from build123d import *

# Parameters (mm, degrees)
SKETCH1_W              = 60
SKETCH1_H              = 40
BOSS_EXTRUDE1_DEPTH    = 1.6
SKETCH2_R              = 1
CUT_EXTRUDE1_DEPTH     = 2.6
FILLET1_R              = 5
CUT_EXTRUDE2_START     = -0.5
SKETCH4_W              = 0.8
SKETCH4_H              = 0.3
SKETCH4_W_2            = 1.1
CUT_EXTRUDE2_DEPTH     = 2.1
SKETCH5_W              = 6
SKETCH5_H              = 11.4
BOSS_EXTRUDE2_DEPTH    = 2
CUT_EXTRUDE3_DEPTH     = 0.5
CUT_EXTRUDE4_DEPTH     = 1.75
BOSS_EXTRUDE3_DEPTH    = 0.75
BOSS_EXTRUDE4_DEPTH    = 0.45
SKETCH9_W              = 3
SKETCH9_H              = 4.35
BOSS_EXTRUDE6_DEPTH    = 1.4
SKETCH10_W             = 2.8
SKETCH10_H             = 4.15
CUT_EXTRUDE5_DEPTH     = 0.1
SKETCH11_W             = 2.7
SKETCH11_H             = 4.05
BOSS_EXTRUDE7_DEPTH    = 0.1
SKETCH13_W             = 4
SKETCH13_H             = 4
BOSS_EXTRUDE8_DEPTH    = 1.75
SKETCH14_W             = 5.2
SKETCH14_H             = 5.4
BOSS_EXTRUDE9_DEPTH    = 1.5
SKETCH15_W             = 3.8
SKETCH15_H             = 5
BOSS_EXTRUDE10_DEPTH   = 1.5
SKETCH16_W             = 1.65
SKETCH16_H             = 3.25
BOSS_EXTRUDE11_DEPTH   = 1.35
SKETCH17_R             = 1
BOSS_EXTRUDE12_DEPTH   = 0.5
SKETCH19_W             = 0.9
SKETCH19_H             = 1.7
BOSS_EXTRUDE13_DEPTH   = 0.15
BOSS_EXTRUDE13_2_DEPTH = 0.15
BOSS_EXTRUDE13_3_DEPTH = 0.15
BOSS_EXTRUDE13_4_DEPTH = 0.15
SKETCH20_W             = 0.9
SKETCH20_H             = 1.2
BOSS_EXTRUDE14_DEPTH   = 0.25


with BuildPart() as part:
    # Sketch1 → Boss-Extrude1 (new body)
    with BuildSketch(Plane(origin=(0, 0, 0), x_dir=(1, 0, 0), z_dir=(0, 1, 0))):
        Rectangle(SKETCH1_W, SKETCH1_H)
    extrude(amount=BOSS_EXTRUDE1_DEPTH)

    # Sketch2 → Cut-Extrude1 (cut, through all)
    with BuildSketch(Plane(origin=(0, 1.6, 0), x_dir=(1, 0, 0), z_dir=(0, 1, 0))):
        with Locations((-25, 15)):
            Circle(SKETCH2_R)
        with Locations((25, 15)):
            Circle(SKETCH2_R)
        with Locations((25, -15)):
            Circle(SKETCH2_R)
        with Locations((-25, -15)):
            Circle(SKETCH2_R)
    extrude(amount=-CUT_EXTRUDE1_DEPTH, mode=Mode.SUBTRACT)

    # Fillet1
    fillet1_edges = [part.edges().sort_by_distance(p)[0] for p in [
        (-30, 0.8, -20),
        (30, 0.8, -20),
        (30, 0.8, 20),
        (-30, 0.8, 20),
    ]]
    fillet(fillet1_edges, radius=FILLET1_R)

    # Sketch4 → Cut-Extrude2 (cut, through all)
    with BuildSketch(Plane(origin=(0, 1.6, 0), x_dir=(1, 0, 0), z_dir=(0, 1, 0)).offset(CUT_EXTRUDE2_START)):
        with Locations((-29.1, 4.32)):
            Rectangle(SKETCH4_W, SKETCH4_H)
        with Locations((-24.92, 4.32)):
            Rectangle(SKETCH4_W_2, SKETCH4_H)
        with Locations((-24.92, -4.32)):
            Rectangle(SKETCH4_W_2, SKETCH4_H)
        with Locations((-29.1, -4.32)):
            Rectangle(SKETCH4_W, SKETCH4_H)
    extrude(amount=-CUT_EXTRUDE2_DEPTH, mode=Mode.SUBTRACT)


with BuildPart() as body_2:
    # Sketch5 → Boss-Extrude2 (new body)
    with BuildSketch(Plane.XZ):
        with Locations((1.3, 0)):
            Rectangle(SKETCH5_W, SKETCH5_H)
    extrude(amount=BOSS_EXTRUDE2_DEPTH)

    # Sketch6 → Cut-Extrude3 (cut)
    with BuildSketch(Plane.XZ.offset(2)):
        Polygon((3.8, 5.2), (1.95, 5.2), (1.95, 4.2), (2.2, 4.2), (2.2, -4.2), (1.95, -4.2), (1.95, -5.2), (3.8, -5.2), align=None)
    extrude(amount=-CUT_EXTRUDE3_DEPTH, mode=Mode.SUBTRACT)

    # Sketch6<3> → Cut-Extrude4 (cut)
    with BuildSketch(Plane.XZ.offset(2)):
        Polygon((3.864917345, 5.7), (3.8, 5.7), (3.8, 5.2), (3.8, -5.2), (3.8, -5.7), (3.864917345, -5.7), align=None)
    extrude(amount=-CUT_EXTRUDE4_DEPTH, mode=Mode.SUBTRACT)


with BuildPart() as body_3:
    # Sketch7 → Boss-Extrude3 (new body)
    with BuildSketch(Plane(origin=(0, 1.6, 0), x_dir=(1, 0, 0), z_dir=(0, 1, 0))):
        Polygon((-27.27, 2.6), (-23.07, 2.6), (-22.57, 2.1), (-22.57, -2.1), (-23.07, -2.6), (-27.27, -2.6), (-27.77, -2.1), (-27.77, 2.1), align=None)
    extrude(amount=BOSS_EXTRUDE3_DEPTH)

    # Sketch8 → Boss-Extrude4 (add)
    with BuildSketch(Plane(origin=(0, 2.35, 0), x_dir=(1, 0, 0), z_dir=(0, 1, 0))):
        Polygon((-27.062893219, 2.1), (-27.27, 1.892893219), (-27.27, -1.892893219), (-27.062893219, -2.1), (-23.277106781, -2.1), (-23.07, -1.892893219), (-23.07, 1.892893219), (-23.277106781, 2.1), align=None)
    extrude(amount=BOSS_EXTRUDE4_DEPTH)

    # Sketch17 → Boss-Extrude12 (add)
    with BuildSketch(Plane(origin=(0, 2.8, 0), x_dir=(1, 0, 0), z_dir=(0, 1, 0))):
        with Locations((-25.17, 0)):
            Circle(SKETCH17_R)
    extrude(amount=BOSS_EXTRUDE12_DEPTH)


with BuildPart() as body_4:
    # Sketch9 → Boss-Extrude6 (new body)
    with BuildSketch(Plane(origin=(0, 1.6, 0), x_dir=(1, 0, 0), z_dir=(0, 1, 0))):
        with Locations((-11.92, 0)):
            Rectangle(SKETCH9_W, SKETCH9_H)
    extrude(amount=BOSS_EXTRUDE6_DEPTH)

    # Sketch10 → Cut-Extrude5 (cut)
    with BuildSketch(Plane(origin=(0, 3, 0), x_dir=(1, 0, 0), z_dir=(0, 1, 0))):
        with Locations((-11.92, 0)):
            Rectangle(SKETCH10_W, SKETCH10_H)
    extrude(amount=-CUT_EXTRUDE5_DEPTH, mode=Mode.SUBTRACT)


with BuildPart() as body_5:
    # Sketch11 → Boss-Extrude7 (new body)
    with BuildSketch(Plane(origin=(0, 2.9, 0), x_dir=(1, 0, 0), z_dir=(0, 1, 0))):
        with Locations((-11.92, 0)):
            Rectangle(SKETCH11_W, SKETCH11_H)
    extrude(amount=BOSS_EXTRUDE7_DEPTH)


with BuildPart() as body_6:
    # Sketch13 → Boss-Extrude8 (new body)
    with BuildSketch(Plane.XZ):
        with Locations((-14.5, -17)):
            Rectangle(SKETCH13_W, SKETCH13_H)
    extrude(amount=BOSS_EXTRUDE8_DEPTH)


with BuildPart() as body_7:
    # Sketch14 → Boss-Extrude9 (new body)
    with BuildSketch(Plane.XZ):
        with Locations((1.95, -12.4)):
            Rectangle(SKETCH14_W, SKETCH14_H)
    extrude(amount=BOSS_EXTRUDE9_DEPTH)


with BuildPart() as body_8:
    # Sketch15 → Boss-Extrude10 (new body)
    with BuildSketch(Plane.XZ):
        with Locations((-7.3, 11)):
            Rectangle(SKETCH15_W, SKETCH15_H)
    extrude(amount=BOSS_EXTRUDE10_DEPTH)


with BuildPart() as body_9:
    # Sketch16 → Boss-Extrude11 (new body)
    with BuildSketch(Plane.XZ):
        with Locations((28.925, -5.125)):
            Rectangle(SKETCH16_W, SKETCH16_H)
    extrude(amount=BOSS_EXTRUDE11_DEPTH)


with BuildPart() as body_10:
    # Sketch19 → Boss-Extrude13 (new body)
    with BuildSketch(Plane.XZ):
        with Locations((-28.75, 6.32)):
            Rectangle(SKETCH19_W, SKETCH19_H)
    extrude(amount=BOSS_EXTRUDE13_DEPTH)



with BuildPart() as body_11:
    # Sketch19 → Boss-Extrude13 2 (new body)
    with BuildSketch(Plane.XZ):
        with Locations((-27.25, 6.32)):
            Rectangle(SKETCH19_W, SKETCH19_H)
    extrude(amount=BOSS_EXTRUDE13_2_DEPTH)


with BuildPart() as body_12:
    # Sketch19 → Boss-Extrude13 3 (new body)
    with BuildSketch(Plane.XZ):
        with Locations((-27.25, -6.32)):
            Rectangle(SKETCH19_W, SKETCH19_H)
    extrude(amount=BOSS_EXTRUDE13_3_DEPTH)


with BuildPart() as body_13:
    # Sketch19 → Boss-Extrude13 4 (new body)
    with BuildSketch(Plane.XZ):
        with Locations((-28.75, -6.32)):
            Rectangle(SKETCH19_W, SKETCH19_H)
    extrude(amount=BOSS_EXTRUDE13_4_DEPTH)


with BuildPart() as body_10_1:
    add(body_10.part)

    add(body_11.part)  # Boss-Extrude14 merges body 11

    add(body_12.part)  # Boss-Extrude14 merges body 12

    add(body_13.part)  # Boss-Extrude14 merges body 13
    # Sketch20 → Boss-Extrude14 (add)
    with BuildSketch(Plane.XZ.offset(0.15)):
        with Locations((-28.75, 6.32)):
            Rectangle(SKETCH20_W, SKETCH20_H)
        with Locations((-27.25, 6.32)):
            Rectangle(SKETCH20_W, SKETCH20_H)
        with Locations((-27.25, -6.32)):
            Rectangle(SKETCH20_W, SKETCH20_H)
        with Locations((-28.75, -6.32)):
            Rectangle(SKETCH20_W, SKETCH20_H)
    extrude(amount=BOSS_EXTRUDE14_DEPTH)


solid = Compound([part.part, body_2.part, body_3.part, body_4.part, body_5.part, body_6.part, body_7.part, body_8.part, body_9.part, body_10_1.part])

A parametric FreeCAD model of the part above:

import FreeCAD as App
import Part
import Sketcher
from FreeCAD import Vector
Q = App.Units.Quantity


def edges_at(feature, points):
    """Names of the edges that pass closest to the given points."""
    edges = feature.Shape.Edges
    near = lambda p: min(range(len(edges)), key=lambda i: edges[i].distToShape(Part.Vertex(*p))[0])
    return sorted({f"Edge{near(p) + 1}" for p in points})

doc = App.newDocument("Part")
body = doc.addObject("PartDesign::Body", "Body")

sketch1 = body.newObject("Sketcher::SketchObject", "Sketch")
sketch1.AttachmentSupport = (doc.getObject("XZ_Plane"), [""])
sketch1.MapMode = "FlatFace"
sketch1.addGeometry([
    Part.LineSegment(Vector(-30, -20, 0), Vector(-30, 20, 0)),
    Part.LineSegment(Vector(-30, 20, 0), Vector(30, 20, 0)),
    Part.LineSegment(Vector(30, 20, 0), Vector(30, -20, 0)),
    Part.LineSegment(Vector(30, -20, 0), Vector(-30, -20, 0)),
], False)
sketch1.addConstraint([
    Sketcher.Constraint("Coincident", 0, 2, 1, 1),
    Sketcher.Constraint("Coincident", 1, 2, 2, 1),
    Sketcher.Constraint("Coincident", 2, 2, 3, 1),
    Sketcher.Constraint("Coincident", 3, 2, 0, 1),
    Sketcher.Constraint("Vertical", 0),
    Sketcher.Constraint("Horizontal", 1),
    Sketcher.Constraint("Vertical", 2),
    Sketcher.Constraint("Horizontal", 3),
    Sketcher.Constraint("Symmetric", 0, 2, 2, 2, -1, 1),
    Sketcher.Constraint("DistanceX", 1, 1, 1, 2, Q("60 mm")),
    Sketcher.Constraint("DistanceY", 0, 1, 0, 2, Q("40 mm")),
])
pad1 = body.newObject("PartDesign::Pad", "Pad")
pad1.Profile = sketch1
pad1.Length = 1.6
pad1.Reversed = True

sketch2 = body.newObject("Sketcher::SketchObject", "Sketch001")
sketch2.AttachmentSupport = (doc.getObject("XZ_Plane"), [""])
sketch2.MapMode = "FlatFace"
sketch2.AttachmentOffset = App.Placement(Vector(0, 0, -1.6), App.Rotation())
sketch2.addGeometry([
    Part.Circle(Vector(-25, -15, 0), Vector(0, 0, 1), 1),
    Part.Circle(Vector(25, -15, 0), Vector(0, 0, 1), 1),
    Part.Circle(Vector(25, 15, 0), Vector(0, 0, 1), 1),
    Part.Circle(Vector(-25, 15, 0), Vector(0, 0, 1), 1),
], False)
sketch2.addConstraint([
    Sketcher.Constraint("Equal", 0, 1),
    Sketcher.Constraint("Equal", 1, 2),
    Sketcher.Constraint("Equal", 2, 3),
    Sketcher.Constraint("Symmetric", 0, 3, 2, 3, -1, 1),
    Sketcher.Constraint("Symmetric", 1, 3, 3, 3, -1, 1),
    Sketcher.Constraint("Symmetric", 0, 3, 1, 3, -2),
    Sketcher.Constraint("Diameter", 0, Q("2 mm")),
    Sketcher.Constraint("DistanceX", 0, 3, -1, 1, Q("25 mm")),
    Sketcher.Constraint("DistanceY", 0, 3, -1, 1, Q("15 mm")),
])
pocket1 = body.newObject("PartDesign::Pocket", "Pocket")
pocket1.Profile = sketch2
pocket1.Type = "ThroughAll"
pocket1.Reversed = True
doc.recompute()

fillet = body.newObject("PartDesign::Fillet", "Fillet")
fillet.Base = (pocket1, edges_at(pocket1, [
    (-30, 0.8, -20),
    (30, 0.8, -20),
    (30, 0.8, 20),
    (-30, 0.8, 20),
]))
fillet.Radius = 5

sketch3 = body.newObject("Sketcher::SketchObject", "Sketch002")
sketch3.AttachmentSupport = (doc.getObject("XZ_Plane"), [""])
sketch3.MapMode = "FlatFace"
sketch3.AttachmentOffset = App.Placement(Vector(0, 0, -1.1), App.Rotation())
sketch3.addGeometry([
    Part.LineSegment(Vector(-29.5, -4.47, 0), Vector(-29.5, -4.17, 0)),
    Part.LineSegment(Vector(-29.5, -4.17, 0), Vector(-28.7, -4.17, 0)),
    Part.LineSegment(Vector(-28.7, -4.17, 0), Vector(-28.7, -4.47, 0)),
    Part.LineSegment(Vector(-28.7, -4.47, 0), Vector(-29.5, -4.47, 0)),
    Part.LineSegment(Vector(-25.47, -4.47, 0), Vector(-25.47, -4.17, 0)),
    Part.LineSegment(Vector(-25.47, -4.17, 0), Vector(-24.37, -4.17, 0)),
    Part.LineSegment(Vector(-24.37, -4.17, 0), Vector(-24.37, -4.47, 0)),
    Part.LineSegment(Vector(-24.37, -4.47, 0), Vector(-25.47, -4.47, 0)),
    Part.LineSegment(Vector(-25.47, 4.17, 0), Vector(-25.47, 4.47, 0)),
    Part.LineSegment(Vector(-25.47, 4.47, 0), Vector(-24.37, 4.47, 0)),
    Part.LineSegment(Vector(-24.37, 4.47, 0), Vector(-24.37, 4.17, 0)),
    Part.LineSegment(Vector(-24.37, 4.17, 0), Vector(-25.47, 4.17, 0)),
    Part.LineSegment(Vector(-29.5, 4.17, 0), Vector(-29.5, 4.47, 0)),
    Part.LineSegment(Vector(-29.5, 4.47, 0), Vector(-28.7, 4.47, 0)),
    Part.LineSegment(Vector(-28.7, 4.47, 0), Vector(-28.7, 4.17, 0)),
    Part.LineSegment(Vector(-28.7, 4.17, 0), Vector(-29.5, 4.17, 0)),
], False)
sketch3.addConstraint([
    Sketcher.Constraint("Coincident", 0, 2, 1, 1),
    Sketcher.Constraint("Coincident", 1, 2, 2, 1),
    Sketcher.Constraint("Coincident", 2, 2, 3, 1),
    Sketcher.Constraint("Coincident", 3, 2, 0, 1),
    Sketcher.Constraint("Coincident", 4, 2, 5, 1),
    Sketcher.Constraint("Coincident", 5, 2, 6, 1),
    Sketcher.Constraint("Coincident", 6, 2, 7, 1),
    Sketcher.Constraint("Coincident", 7, 2, 4, 1),
    Sketcher.Constraint("Coincident", 8, 2, 9, 1),
    Sketcher.Constraint("Coincident", 9, 2, 10, 1),
    Sketcher.Constraint("Coincident", 10, 2, 11, 1),
    Sketcher.Constraint("Coincident", 11, 2, 8, 1),
    Sketcher.Constraint("Coincident", 12, 2, 13, 1),
    Sketcher.Constraint("Coincident", 13, 2, 14, 1),
    Sketcher.Constraint("Coincident", 14, 2, 15, 1),
    Sketcher.Constraint("Coincident", 15, 2, 12, 1),
    Sketcher.Constraint("Vertical", 0),
    Sketcher.Constraint("Horizontal", 1),
    Sketcher.Constraint("Vertical", 2),
    Sketcher.Constraint("Horizontal", 3),
    Sketcher.Constraint("Vertical", 4),
    Sketcher.Constraint("Horizontal", 5),
    Sketcher.Constraint("Vertical", 6),
    Sketcher.Constraint("Horizontal", 7),
    Sketcher.Constraint("Vertical", 8),
    Sketcher.Constraint("Horizontal", 9),
    Sketcher.Constraint("Vertical", 10),
    Sketcher.Constraint("Horizontal", 11),
    Sketcher.Constraint("Vertical", 12),
    Sketcher.Constraint("Horizontal", 13),
    Sketcher.Constraint("Vertical", 14),
    Sketcher.Constraint("Horizontal", 15),
    Sketcher.Constraint("Symmetric", 7, 2, 8, 2, -1),
    Sketcher.Constraint("Symmetric", 5, 2, 10, 2, -1),
    Sketcher.Constraint("Symmetric", 3, 2, 12, 2, -1),
    Sketcher.Constraint("Symmetric", 1, 2, 14, 2, -1),
    Sketcher.Constraint("Horizontal", 1, 2, 4, 2),
    Sketcher.Constraint("Horizontal", 3, 2, 6, 2),
    Sketcher.Constraint("DistanceX", 1, 1, 1, 2, Q("0.8 mm")),
    Sketcher.Constraint("DistanceX", 5, 1, 5, 2, Q("1.1 mm")),
    Sketcher.Constraint("DistanceY", 0, 1, 0, 2, Q("0.3 mm")),
    Sketcher.Constraint("DistanceX", 0, 2, -1, 1, Q("29.5 mm")),
    Sketcher.Constraint("DistanceY", 0, 2, -1, 1, Q("4.17 mm")),
    Sketcher.Constraint("DistanceX", 4, 2, -1, 1, Q("25.47 mm")),
])
pocket2 = body.newObject("PartDesign::Pocket", "Pocket001")
pocket2.Profile = sketch3
pocket2.Type = "ThroughAll"
pocket2.Reversed = True
body2 = doc.addObject("PartDesign::Body", "Body001")

sketch4 = body2.newObject("Sketcher::SketchObject", "Sketch003")
sketch4.AttachmentSupport = (doc.getObject("XZ_Plane001"), [""])
sketch4.MapMode = "FlatFace"
sketch4.addGeometry([
    Part.LineSegment(Vector(-1.7, 5.7, 0), Vector(-1.7, -5.7, 0)),
    Part.LineSegment(Vector(-1.7, -5.7, 0), Vector(4.3, -5.7, 0)),
    Part.LineSegment(Vector(4.3, -5.7, 0), Vector(4.3, 5.7, 0)),
    Part.LineSegment(Vector(4.3, 5.7, 0), Vector(-1.7, 5.7, 0)),
], False)
sketch4.addConstraint([
    Sketcher.Constraint("Coincident", 0, 2, 1, 1),
    Sketcher.Constraint("Coincident", 1, 2, 2, 1),
    Sketcher.Constraint("Coincident", 2, 2, 3, 1),
    Sketcher.Constraint("Coincident", 3, 2, 0, 1),
    Sketcher.Constraint("Vertical", 0),
    Sketcher.Constraint("Horizontal", 1),
    Sketcher.Constraint("Vertical", 2),
    Sketcher.Constraint("Horizontal", 3),
    Sketcher.Constraint("DistanceX", 1, 1, 1, 2, Q("6 mm")),
    Sketcher.Constraint("DistanceY", 0, 2, 0, 1, Q("11.4 mm")),
    Sketcher.Constraint("DistanceX", 0, 2, -1, 1, Q("1.7 mm")),
    Sketcher.Constraint("DistanceY", 0, 2, -1, 1, Q("5.7 mm")),
])
pad2 = body2.newObject("PartDesign::Pad", "Pad001")
pad2.Profile = sketch4
pad2.Length = 2

sketch5 = body2.newObject("Sketcher::SketchObject", "Sketch004")
sketch5.AttachmentSupport = (doc.getObject("XZ_Plane001"), [""])
sketch5.MapMode = "FlatFace"
sketch5.AttachmentOffset = App.Placement(Vector(0, 0, 2), App.Rotation())
sketch5.addGeometry([
    Part.LineSegment(Vector(3.8, 5.2, 0), Vector(1.95, 5.2, 0)),
    Part.LineSegment(Vector(1.95, 5.2, 0), Vector(1.95, 4.2, 0)),
    Part.LineSegment(Vector(1.95, 4.2, 0), Vector(2.2, 4.2, 0)),
    Part.LineSegment(Vector(2.2, 4.2, 0), Vector(2.2, -4.2, 0)),
    Part.LineSegment(Vector(2.2, -4.2, 0), Vector(1.95, -4.2, 0)),
    Part.LineSegment(Vector(1.95, -4.2, 0), Vector(1.95, -5.2, 0)),
    Part.LineSegment(Vector(1.95, -5.2, 0), Vector(3.8, -5.2, 0)),
    Part.LineSegment(Vector(3.8, -5.2, 0), Vector(3.8, 5.2, 0)),
], False)
sketch5.addConstraint([
    Sketcher.Constraint("Coincident", 0, 2, 1, 1),
    Sketcher.Constraint("Coincident", 1, 2, 2, 1),
    Sketcher.Constraint("Coincident", 2, 2, 3, 1),
    Sketcher.Constraint("Coincident", 3, 2, 4, 1),
    Sketcher.Constraint("Coincident", 4, 2, 5, 1),
    Sketcher.Constraint("Coincident", 5, 2, 6, 1),
    Sketcher.Constraint("Coincident", 6, 2, 7, 1),
    Sketcher.Constraint("Coincident", 7, 2, 0, 1),
    Sketcher.Constraint("Horizontal", 0),
    Sketcher.Constraint("Vertical", 1),
    Sketcher.Constraint("Horizontal", 2),
    Sketcher.Constraint("Vertical", 3),
    Sketcher.Constraint("Horizontal", 4),
    Sketcher.Constraint("Vertical", 5),
    Sketcher.Constraint("Horizontal", 6),
    Sketcher.Constraint("Vertical", 7),
    Sketcher.Constraint("Symmetric", 1, 2, 4, 2, -1),
    Sketcher.Constraint("Equal", 1, 5),
    Sketcher.Constraint("DistanceY", 1, 2, 1, 1, Q("1 mm")),
    Sketcher.Constraint("DistanceY", 3, 2, 3, 1, Q("8.4 mm")),
    Sketcher.Constraint("DistanceX", 0, 2, 0, 1, Q("1.85 mm")),
    Sketcher.Constraint("DistanceX", 2, 1, 2, 2, Q("0.25 mm")),
    Sketcher.Constraint("DistanceX", -1, 1, 2, 2, Q("2.2 mm")),
])
pocket3 = body2.newObject("PartDesign::Pocket", "Pocket002")
pocket3.Profile = sketch5
pocket3.Length = 0.5

sketch6 = body2.newObject("Sketcher::SketchObject", "Sketch005")
sketch6.AttachmentSupport = (doc.getObject("XZ_Plane001"), [""])
sketch6.MapMode = "FlatFace"
sketch6.AttachmentOffset = App.Placement(Vector(0, 0, 2), App.Rotation())
sketch6.addGeometry([
    Part.LineSegment(Vector(3.864917, 5.7, 0), Vector(3.8, 5.7, 0)),
    Part.LineSegment(Vector(3.8, 5.7, 0), Vector(3.8, -5.7, 0)),
    Part.LineSegment(Vector(3.8, -5.7, 0), Vector(3.864917, -5.7, 0)),
    Part.LineSegment(Vector(3.864917, -5.7, 0), Vector(3.864917, 5.7, 0)),
], False)
sketch6.addConstraint([
    Sketcher.Constraint("Coincident", 0, 2, 1, 1),
    Sketcher.Constraint("Coincident", 1, 2, 2, 1),
    Sketcher.Constraint("Coincident", 2, 2, 3, 1),
    Sketcher.Constraint("Coincident", 3, 2, 0, 1),
    Sketcher.Constraint("Horizontal", 0),
    Sketcher.Constraint("Vertical", 1),
    Sketcher.Constraint("Horizontal", 2),
    Sketcher.Constraint("Vertical", 3),
    Sketcher.Constraint("DistanceY", 1, 2, 1, 1, Q("11.4 mm")),
    Sketcher.Constraint("DistanceX", -1, 1, 0, 2, Q("3.8 mm")),
    Sketcher.Constraint("DistanceY", -1, 1, 0, 2, Q("5.7 mm")),
    Sketcher.Constraint("DistanceX", 0, 2, 0, 1, Q("0.064917 mm")),
])
pocket4 = body2.newObject("PartDesign::Pocket", "Pocket003")
pocket4.Profile = sketch6
pocket4.Length = 1.75
body3 = doc.addObject("PartDesign::Body", "Body002")

sketch7 = body3.newObject("Sketcher::SketchObject", "Sketch006")
sketch7.AttachmentSupport = (doc.getObject("XZ_Plane002"), [""])
sketch7.MapMode = "FlatFace"
sketch7.AttachmentOffset = App.Placement(Vector(0, 0, -1.6), App.Rotation())
sketch7.addGeometry([
    Part.LineSegment(Vector(-23.07, -2.6, 0), Vector(-27.27, -2.6, 0)),
    Part.LineSegment(Vector(-27.27, -2.6, 0), Vector(-27.77, -2.1, 0)),
    Part.LineSegment(Vector(-27.77, -2.1, 0), Vector(-27.77, 2.1, 0)),
    Part.LineSegment(Vector(-27.77, 2.1, 0), Vector(-27.27, 2.6, 0)),
    Part.LineSegment(Vector(-27.27, 2.6, 0), Vector(-23.07, 2.6, 0)),
    Part.LineSegment(Vector(-23.07, 2.6, 0), Vector(-22.57, 2.1, 0)),
    Part.LineSegment(Vector(-22.57, 2.1, 0), Vector(-22.57, -2.1, 0)),
    Part.LineSegment(Vector(-22.57, -2.1, 0), Vector(-23.07, -2.6, 0)),
], False)
sketch7.addConstraint([
    Sketcher.Constraint("Coincident", 0, 2, 1, 1),
    Sketcher.Constraint("Coincident", 1, 2, 2, 1),
    Sketcher.Constraint("Coincident", 2, 2, 3, 1),
    Sketcher.Constraint("Coincident", 3, 2, 4, 1),
    Sketcher.Constraint("Coincident", 4, 2, 5, 1),
    Sketcher.Constraint("Coincident", 5, 2, 6, 1),
    Sketcher.Constraint("Coincident", 6, 2, 7, 1),
    Sketcher.Constraint("Coincident", 7, 2, 0, 1),
    Sketcher.Constraint("Horizontal", 0),
    Sketcher.Constraint("Vertical", 2),
    Sketcher.Constraint("Horizontal", 4),
    Sketcher.Constraint("Vertical", 6),
    Sketcher.Constraint("Symmetric", 0, 2, 3, 2, -1),
    Sketcher.Constraint("Perpendicular", 1, 3),
    Sketcher.Constraint("Perpendicular", 3, 5),
    Sketcher.Constraint("Perpendicular", 5, 7),
    Sketcher.Constraint("Horizontal", 2, 2, 5, 2),
    Sketcher.Constraint("Horizontal", 1, 2, 6, 2),
    Sketcher.Constraint("Vertical", 4, 2, 7, 2),
    Sketcher.Constraint("Equal", 4, 2),
    Sketcher.Constraint("DistanceX", 0, 2, 0, 1, Q("4.2 mm")),
    Sketcher.Constraint("DistanceY", 0, 2, -1, 1, Q("2.6 mm")),
    Sketcher.Constraint("DistanceX", 0, 2, -1, 1, Q("27.27 mm")),
])
pad3 = body3.newObject("PartDesign::Pad", "Pad002")
pad3.Profile = sketch7
pad3.Length = 0.75
pad3.Reversed = True

sketch8 = body3.newObject("Sketcher::SketchObject", "Sketch007")
sketch8.AttachmentSupport = (doc.getObject("XZ_Plane002"), [""])
sketch8.MapMode = "FlatFace"
sketch8.AttachmentOffset = App.Placement(Vector(0, 0, -2.35), App.Rotation())
sketch8.addGeometry([
    Part.LineSegment(Vector(-27.062893, -2.1, 0), Vector(-27.27, -1.892893, 0)),
    Part.LineSegment(Vector(-27.27, -1.892893, 0), Vector(-27.27, 1.892893, 0)),
    Part.LineSegment(Vector(-27.27, 1.892893, 0), Vector(-27.062893, 2.1, 0)),
    Part.LineSegment(Vector(-27.062893, 2.1, 0), Vector(-23.277107, 2.1, 0)),
    Part.LineSegment(Vector(-23.277107, 2.1, 0), Vector(-23.07, 1.892893, 0)),
    Part.LineSegment(Vector(-23.07, 1.892893, 0), Vector(-23.07, -1.892893, 0)),
    Part.LineSegment(Vector(-23.07, -1.892893, 0), Vector(-23.277107, -2.1, 0)),
    Part.LineSegment(Vector(-23.277107, -2.1, 0), Vector(-27.062893, -2.1, 0)),
], False)
sketch8.addConstraint([
    Sketcher.Constraint("Coincident", 0, 2, 1, 1),
    Sketcher.Constraint("Coincident", 1, 2, 2, 1),
    Sketcher.Constraint("Coincident", 2, 2, 3, 1),
    Sketcher.Constraint("Coincident", 3, 2, 4, 1),
    Sketcher.Constraint("Coincident", 4, 2, 5, 1),
    Sketcher.Constraint("Coincident", 5, 2, 6, 1),
    Sketcher.Constraint("Coincident", 6, 2, 7, 1),
    Sketcher.Constraint("Coincident", 7, 2, 0, 1),
    Sketcher.Constraint("Vertical", 1),
    Sketcher.Constraint("Horizontal", 3),
    Sketcher.Constraint("Vertical", 5),
    Sketcher.Constraint("Horizontal", 7),
    Sketcher.Constraint("Symmetric", 3, 2, 6, 2, -1),
    Sketcher.Constraint("Perpendicular", 0, 2),
    Sketcher.Constraint("Perpendicular", 2, 4),
    Sketcher.Constraint("Perpendicular", 4, 6),
    Sketcher.Constraint("Horizontal", 1, 2, 4, 2),
    Sketcher.Constraint("Horizontal", 0, 2, 5, 2),
    Sketcher.Constraint("Vertical", 2, 2, 7, 2),
    Sketcher.Constraint("Equal", 7, 1),
    Sketcher.Constraint("DistanceY", -1, 1, 2, 2, Q("2.1 mm")),
    Sketcher.Constraint("DistanceX", 0, 2, -1, 1, Q("27.27 mm")),
    Sketcher.Constraint("DistanceX", 3, 1, 3, 2, Q("3.785786 mm")),
])
pad4 = body3.newObject("PartDesign::Pad", "Pad003")
pad4.Profile = sketch8
pad4.Length = 0.45
pad4.Reversed = True

sketch9 = body3.newObject("Sketcher::SketchObject", "Sketch008")
sketch9.AttachmentSupport = (doc.getObject("XZ_Plane002"), [""])
sketch9.MapMode = "FlatFace"
sketch9.AttachmentOffset = App.Placement(Vector(0, 0, -2.8), App.Rotation())
sketch9.addGeometry(Part.Circle(Vector(-25.17, 0, 0), Vector(0, 0, 1), 1), False)
sketch9.addConstraint([
    Sketcher.Constraint("PointOnObject", 0, 3, -1),
    Sketcher.Constraint("Diameter", 0, Q("2 mm")),
    Sketcher.Constraint("DistanceX", 0, 3, -1, 1, Q("25.17 mm")),
])
pad5 = body3.newObject("PartDesign::Pad", "Pad004")
pad5.Profile = sketch9
pad5.Length = 0.5
pad5.Reversed = True
body4 = doc.addObject("PartDesign::Body", "Body003")

sketch10 = body4.newObject("Sketcher::SketchObject", "Sketch009")
sketch10.AttachmentSupport = (doc.getObject("XZ_Plane003"), [""])
sketch10.MapMode = "FlatFace"
sketch10.AttachmentOffset = App.Placement(Vector(0, 0, -1.6), App.Rotation())
sketch10.addGeometry([
    Part.LineSegment(Vector(-13.42, -2.175, 0), Vector(-13.42, 2.175, 0)),
    Part.LineSegment(Vector(-13.42, 2.175, 0), Vector(-10.42, 2.175, 0)),
    Part.LineSegment(Vector(-10.42, 2.175, 0), Vector(-10.42, -2.175, 0)),
    Part.LineSegment(Vector(-10.42, -2.175, 0), Vector(-13.42, -2.175, 0)),
], False)
sketch10.addConstraint([
    Sketcher.Constraint("Coincident", 0, 2, 1, 1),
    Sketcher.Constraint("Coincident", 1, 2, 2, 1),
    Sketcher.Constraint("Coincident", 2, 2, 3, 1),
    Sketcher.Constraint("Coincident", 3, 2, 0, 1),
    Sketcher.Constraint("Vertical", 0),
    Sketcher.Constraint("Horizontal", 1),
    Sketcher.Constraint("Vertical", 2),
    Sketcher.Constraint("Horizontal", 3),
    Sketcher.Constraint("DistanceX", 1, 1, 1, 2, Q("3 mm")),
    Sketcher.Constraint("DistanceY", 0, 1, 0, 2, Q("4.35 mm")),
    Sketcher.Constraint("DistanceX", 0, 2, -1, 1, Q("13.42 mm")),
    Sketcher.Constraint("DistanceY", -1, 1, 0, 2, Q("2.175 mm")),
])
pad6 = body4.newObject("PartDesign::Pad", "Pad005")
pad6.Profile = sketch10
pad6.Length = 1.4
pad6.Reversed = True

sketch11 = body4.newObject("Sketcher::SketchObject", "Sketch010")
sketch11.AttachmentSupport = (doc.getObject("XZ_Plane003"), [""])
sketch11.MapMode = "FlatFace"
sketch11.AttachmentOffset = App.Placement(Vector(0, 0, -3), App.Rotation())
sketch11.addGeometry([
    Part.LineSegment(Vector(-13.32, -2.075, 0), Vector(-13.32, 2.075, 0)),
    Part.LineSegment(Vector(-13.32, 2.075, 0), Vector(-10.52, 2.075, 0)),
    Part.LineSegment(Vector(-10.52, 2.075, 0), Vector(-10.52, -2.075, 0)),
    Part.LineSegment(Vector(-10.52, -2.075, 0), Vector(-13.32, -2.075, 0)),
], False)
sketch11.addConstraint([
    Sketcher.Constraint("Coincident", 0, 2, 1, 1),
    Sketcher.Constraint("Coincident", 1, 2, 2, 1),
    Sketcher.Constraint("Coincident", 2, 2, 3, 1),
    Sketcher.Constraint("Coincident", 3, 2, 0, 1),
    Sketcher.Constraint("Vertical", 0),
    Sketcher.Constraint("Horizontal", 1),
    Sketcher.Constraint("Vertical", 2),
    Sketcher.Constraint("Horizontal", 3),
    Sketcher.Constraint("DistanceX", 1, 1, 1, 2, Q("2.8 mm")),
    Sketcher.Constraint("DistanceY", 0, 1, 0, 2, Q("4.15 mm")),
    Sketcher.Constraint("DistanceX", 0, 2, -1, 1, Q("13.32 mm")),
    Sketcher.Constraint("DistanceY", -1, 1, 0, 2, Q("2.075 mm")),
])
pocket5 = body4.newObject("PartDesign::Pocket", "Pocket004")
pocket5.Profile = sketch11
pocket5.Length = 0.1
pocket5.Reversed = True
body5 = doc.addObject("PartDesign::Body", "Body004")

sketch12 = body5.newObject("Sketcher::SketchObject", "Sketch011")
sketch12.AttachmentSupport = (doc.getObject("XZ_Plane004"), [""])
sketch12.MapMode = "FlatFace"
sketch12.AttachmentOffset = App.Placement(Vector(0, 0, -2.9), App.Rotation())
sketch12.addGeometry([
    Part.LineSegment(Vector(-13.27, -2.025, 0), Vector(-13.27, 2.025, 0)),
    Part.LineSegment(Vector(-13.27, 2.025, 0), Vector(-10.57, 2.025, 0)),
    Part.LineSegment(Vector(-10.57, 2.025, 0), Vector(-10.57, -2.025, 0)),
    Part.LineSegment(Vector(-10.57, -2.025, 0), Vector(-13.27, -2.025, 0)),
], False)
sketch12.addConstraint([
    Sketcher.Constraint("Coincident", 0, 2, 1, 1),
    Sketcher.Constraint("Coincident", 1, 2, 2, 1),
    Sketcher.Constraint("Coincident", 2, 2, 3, 1),
    Sketcher.Constraint("Coincident", 3, 2, 0, 1),
    Sketcher.Constraint("Vertical", 0),
    Sketcher.Constraint("Horizontal", 1),
    Sketcher.Constraint("Vertical", 2),
    Sketcher.Constraint("Horizontal", 3),
    Sketcher.Constraint("DistanceX", 1, 1, 1, 2, Q("2.7 mm")),
    Sketcher.Constraint("DistanceY", 0, 1, 0, 2, Q("4.05 mm")),
    Sketcher.Constraint("DistanceX", 0, 2, -1, 1, Q("13.27 mm")),
    Sketcher.Constraint("DistanceY", -1, 1, 0, 2, Q("2.025 mm")),
])
pad7 = body5.newObject("PartDesign::Pad", "Pad006")
pad7.Profile = sketch12
pad7.Length = 0.1
pad7.Reversed = True
body6 = doc.addObject("PartDesign::Body", "Body005")

sketch13 = body6.newObject("Sketcher::SketchObject", "Sketch012")
sketch13.AttachmentSupport = (doc.getObject("XZ_Plane005"), [""])
sketch13.MapMode = "FlatFace"
sketch13.addGeometry([
    Part.LineSegment(Vector(-16.5, -15, 0), Vector(-16.5, -19, 0)),
    Part.LineSegment(Vector(-16.5, -19, 0), Vector(-12.5, -19, 0)),
    Part.LineSegment(Vector(-12.5, -19, 0), Vector(-12.5, -15, 0)),
    Part.LineSegment(Vector(-12.5, -15, 0), Vector(-16.5, -15, 0)),
], False)
sketch13.addConstraint([
    Sketcher.Constraint("Coincident", 0, 2, 1, 1),
    Sketcher.Constraint("Coincident", 1, 2, 2, 1),
    Sketcher.Constraint("Coincident", 2, 2, 3, 1),
    Sketcher.Constraint("Coincident", 3, 2, 0, 1),
    Sketcher.Constraint("Vertical", 0),
    Sketcher.Constraint("Horizontal", 1),
    Sketcher.Constraint("Vertical", 2),
    Sketcher.Constraint("Horizontal", 3),
    Sketcher.Constraint("Equal", 3, 0),
    Sketcher.Constraint("DistanceX", 1, 1, 1, 2, Q("4 mm")),
    Sketcher.Constraint("DistanceY", 0, 2, -1, 1, Q("19 mm")),
    Sketcher.Constraint("DistanceX", 0, 2, -1, 1, Q("16.5 mm")),
])
pad8 = body6.newObject("PartDesign::Pad", "Pad007")
pad8.Profile = sketch13
pad8.Length = 1.75
body7 = doc.addObject("PartDesign::Body", "Body006")

sketch14 = body7.newObject("Sketcher::SketchObject", "Sketch013")
sketch14.AttachmentSupport = (doc.getObject("XZ_Plane006"), [""])
sketch14.MapMode = "FlatFace"
sketch14.addGeometry([
    Part.LineSegment(Vector(-0.65, -9.7, 0), Vector(-0.65, -15.1, 0)),
    Part.LineSegment(Vector(-0.65, -15.1, 0), Vector(4.55, -15.1, 0)),
    Part.LineSegment(Vector(4.55, -15.1, 0), Vector(4.55, -9.7, 0)),
    Part.LineSegment(Vector(4.55, -9.7, 0), Vector(-0.65, -9.7, 0)),
], False)
sketch14.addConstraint([
    Sketcher.Constraint("Coincident", 0, 2, 1, 1),
    Sketcher.Constraint("Coincident", 1, 2, 2, 1),
    Sketcher.Constraint("Coincident", 2, 2, 3, 1),
    Sketcher.Constraint("Coincident", 3, 2, 0, 1),
    Sketcher.Constraint("Vertical", 0),
    Sketcher.Constraint("Horizontal", 1),
    Sketcher.Constraint("Vertical", 2),
    Sketcher.Constraint("Horizontal", 3),
    Sketcher.Constraint("DistanceX", 1, 1, 1, 2, Q("5.2 mm")),
    Sketcher.Constraint("DistanceY", 0, 2, 0, 1, Q("5.4 mm")),
    Sketcher.Constraint("DistanceY", 0, 2, -1, 1, Q("15.1 mm")),
    Sketcher.Constraint("DistanceX", 0, 2, -1, 1, Q("0.65 mm")),
])
pad9 = body7.newObject("PartDesign::Pad", "Pad008")
pad9.Profile = sketch14
pad9.Length = 1.5
body8 = doc.addObject("PartDesign::Body", "Body007")

sketch15 = body8.newObject("Sketcher::SketchObject", "Sketch014")
sketch15.AttachmentSupport = (doc.getObject("XZ_Plane007"), [""])
sketch15.MapMode = "FlatFace"
sketch15.addGeometry([
    Part.LineSegment(Vector(-9.2, 13.5, 0), Vector(-9.2, 8.5, 0)),
    Part.LineSegment(Vector(-9.2, 8.5, 0), Vector(-5.4, 8.5, 0)),
    Part.LineSegment(Vector(-5.4, 8.5, 0), Vector(-5.4, 13.5, 0)),
    Part.LineSegment(Vector(-5.4, 13.5, 0), Vector(-9.2, 13.5, 0)),
], False)
sketch15.addConstraint([
    Sketcher.Constraint("Coincident", 0, 2, 1, 1),
    Sketcher.Constraint("Coincident", 1, 2, 2, 1),
    Sketcher.Constraint("Coincident", 2, 2, 3, 1),
    Sketcher.Constraint("Coincident", 3, 2, 0, 1),
    Sketcher.Constraint("Vertical", 0),
    Sketcher.Constraint("Horizontal", 1),
    Sketcher.Constraint("Vertical", 2),
    Sketcher.Constraint("Horizontal", 3),
    Sketcher.Constraint("DistanceY", 0, 2, 0, 1, Q("5 mm")),
    Sketcher.Constraint("DistanceX", 1, 1, 1, 2, Q("3.8 mm")),
    Sketcher.Constraint("DistanceX", 0, 2, -1, 1, Q("9.2 mm")),
    Sketcher.Constraint("DistanceY", -1, 1, 0, 2, Q("8.5 mm")),
])
pad10 = body8.newObject("PartDesign::Pad", "Pad009")
pad10.Profile = sketch15
pad10.Length = 1.5
body9 = doc.addObject("PartDesign::Body", "Body008")

sketch16 = body9.newObject("Sketcher::SketchObject", "Sketch015")
sketch16.AttachmentSupport = (doc.getObject("XZ_Plane008"), [""])
sketch16.MapMode = "FlatFace"
sketch16.addGeometry([
    Part.LineSegment(Vector(28.1, -3.5, 0), Vector(28.1, -6.75, 0)),
    Part.LineSegment(Vector(28.1, -6.75, 0), Vector(29.75, -6.75, 0)),
    Part.LineSegment(Vector(29.75, -6.75, 0), Vector(29.75, -3.5, 0)),
    Part.LineSegment(Vector(29.75, -3.5, 0), Vector(28.1, -3.5, 0)),
], False)
sketch16.addConstraint([
    Sketcher.Constraint("Coincident", 0, 2, 1, 1),
    Sketcher.Constraint("Coincident", 1, 2, 2, 1),
    Sketcher.Constraint("Coincident", 2, 2, 3, 1),
    Sketcher.Constraint("Coincident", 3, 2, 0, 1),
    Sketcher.Constraint("Vertical", 0),
    Sketcher.Constraint("Horizontal", 1),
    Sketcher.Constraint("Vertical", 2),
    Sketcher.Constraint("Horizontal", 3),
    Sketcher.Constraint("DistanceX", 1, 1, 1, 2, Q("1.65 mm")),
    Sketcher.Constraint("DistanceY", 0, 2, 0, 1, Q("3.25 mm")),
    Sketcher.Constraint("DistanceX", -1, 1, 0, 2, Q("28.1 mm")),
    Sketcher.Constraint("DistanceY", 2, 2, -1, 1, Q("3.5 mm")),
])
pad11 = body9.newObject("PartDesign::Pad", "Pad010")
pad11.Profile = sketch16
pad11.Length = 1.35
body10 = doc.addObject("PartDesign::Body", "Body009")

sketch17 = body10.newObject("Sketcher::SketchObject", "Sketch016")
sketch17.AttachmentSupport = (doc.getObject("XZ_Plane009"), [""])
sketch17.MapMode = "FlatFace"
sketch17.addGeometry([
    Part.LineSegment(Vector(-29.2, 7.17, 0), Vector(-29.2, 5.47, 0)),
    Part.LineSegment(Vector(-29.2, 5.47, 0), Vector(-28.3, 5.47, 0)),
    Part.LineSegment(Vector(-28.3, 5.47, 0), Vector(-28.3, 7.17, 0)),
    Part.LineSegment(Vector(-28.3, 7.17, 0), Vector(-29.2, 7.17, 0)),
], False)
sketch17.addConstraint([
    Sketcher.Constraint("Coincident", 0, 2, 1, 1),
    Sketcher.Constraint("Coincident", 1, 2, 2, 1),
    Sketcher.Constraint("Coincident", 2, 2, 3, 1),
    Sketcher.Constraint("Coincident", 3, 2, 0, 1),
    Sketcher.Constraint("Vertical", 0),
    Sketcher.Constraint("Horizontal", 1),
    Sketcher.Constraint("Vertical", 2),
    Sketcher.Constraint("Horizontal", 3),
    Sketcher.Constraint("DistanceX", 1, 1, 1, 2, Q("0.9 mm")),
    Sketcher.Constraint("DistanceY", 0, 2, 0, 1, Q("1.7 mm")),
    Sketcher.Constraint("DistanceX", 0, 2, -1, 1, Q("29.2 mm")),
    Sketcher.Constraint("DistanceY", -1, 1, 0, 2, Q("5.47 mm")),
])
pad12 = body10.newObject("PartDesign::Pad", "Pad011")
pad12.Profile = sketch17
pad12.Length = 0.15
body11 = doc.addObject("PartDesign::Body", "Body010")

sketch18 = body11.newObject("Sketcher::SketchObject", "Sketch017")
sketch18.AttachmentSupport = (doc.getObject("XZ_Plane010"), [""])
sketch18.MapMode = "FlatFace"
sketch18.addGeometry([
    Part.LineSegment(Vector(-27.7, 7.17, 0), Vector(-27.7, 5.47, 0)),
    Part.LineSegment(Vector(-27.7, 5.47, 0), Vector(-26.8, 5.47, 0)),
    Part.LineSegment(Vector(-26.8, 5.47, 0), Vector(-26.8, 7.17, 0)),
    Part.LineSegment(Vector(-26.8, 7.17, 0), Vector(-27.7, 7.17, 0)),
], False)
sketch18.addConstraint([
    Sketcher.Constraint("Coincident", 0, 2, 1, 1),
    Sketcher.Constraint("Coincident", 1, 2, 2, 1),
    Sketcher.Constraint("Coincident", 2, 2, 3, 1),
    Sketcher.Constraint("Coincident", 3, 2, 0, 1),
    Sketcher.Constraint("Vertical", 0),
    Sketcher.Constraint("Horizontal", 1),
    Sketcher.Constraint("Vertical", 2),
    Sketcher.Constraint("Horizontal", 3),
    Sketcher.Constraint("DistanceX", 1, 1, 1, 2, Q("0.9 mm")),
    Sketcher.Constraint("DistanceY", 0, 2, 0, 1, Q("1.7 mm")),
    Sketcher.Constraint("DistanceX", 0, 2, -1, 1, Q("27.7 mm")),
    Sketcher.Constraint("DistanceY", -1, 1, 0, 2, Q("5.47 mm")),
])
pad13 = body11.newObject("PartDesign::Pad", "Pad012")
pad13.Profile = sketch18
pad13.Length = 0.15
body12 = doc.addObject("PartDesign::Body", "Body011")

sketch19 = body12.newObject("Sketcher::SketchObject", "Sketch018")
sketch19.AttachmentSupport = (doc.getObject("XZ_Plane011"), [""])
sketch19.MapMode = "FlatFace"
sketch19.addGeometry([
    Part.LineSegment(Vector(-27.7, -5.47, 0), Vector(-27.7, -7.17, 0)),
    Part.LineSegment(Vector(-27.7, -7.17, 0), Vector(-26.8, -7.17, 0)),
    Part.LineSegment(Vector(-26.8, -7.17, 0), Vector(-26.8, -5.47, 0)),
    Part.LineSegment(Vector(-26.8, -5.47, 0), Vector(-27.7, -5.47, 0)),
], False)
sketch19.addConstraint([
    Sketcher.Constraint("Coincident", 0, 2, 1, 1),
    Sketcher.Constraint("Coincident", 1, 2, 2, 1),
    Sketcher.Constraint("Coincident", 2, 2, 3, 1),
    Sketcher.Constraint("Coincident", 3, 2, 0, 1),
    Sketcher.Constraint("Vertical", 0),
    Sketcher.Constraint("Horizontal", 1),
    Sketcher.Constraint("Vertical", 2),
    Sketcher.Constraint("Horizontal", 3),
    Sketcher.Constraint("DistanceX", 1, 1, 1, 2, Q("0.9 mm")),
    Sketcher.Constraint("DistanceY", 0, 2, 0, 1, Q("1.7 mm")),
    Sketcher.Constraint("DistanceX", 0, 2, -1, 1, Q("27.7 mm")),
    Sketcher.Constraint("DistanceY", 0, 2, -1, 1, Q("7.17 mm")),
])
pad14 = body12.newObject("PartDesign::Pad", "Pad013")
pad14.Profile = sketch19
pad14.Length = 0.15
body13 = doc.addObject("PartDesign::Body", "Body012")

sketch20 = body13.newObject("Sketcher::SketchObject", "Sketch019")
sketch20.AttachmentSupport = (doc.getObject("XZ_Plane012"), [""])
sketch20.MapMode = "FlatFace"
sketch20.addGeometry([
    Part.LineSegment(Vector(-29.2, -5.47, 0), Vector(-29.2, -7.17, 0)),
    Part.LineSegment(Vector(-29.2, -7.17, 0), Vector(-28.3, -7.17, 0)),
    Part.LineSegment(Vector(-28.3, -7.17, 0), Vector(-28.3, -5.47, 0)),
    Part.LineSegment(Vector(-28.3, -5.47, 0), Vector(-29.2, -5.47, 0)),
], False)
sketch20.addConstraint([
    Sketcher.Constraint("Coincident", 0, 2, 1, 1),
    Sketcher.Constraint("Coincident", 1, 2, 2, 1),
    Sketcher.Constraint("Coincident", 2, 2, 3, 1),
    Sketcher.Constraint("Coincident", 3, 2, 0, 1),
    Sketcher.Constraint("Vertical", 0),
    Sketcher.Constraint("Horizontal", 1),
    Sketcher.Constraint("Vertical", 2),
    Sketcher.Constraint("Horizontal", 3),
    Sketcher.Constraint("DistanceX", 1, 1, 1, 2, Q("0.9 mm")),
    Sketcher.Constraint("DistanceY", 0, 2, 0, 1, Q("1.7 mm")),
    Sketcher.Constraint("DistanceX", 0, 2, -1, 1, Q("29.2 mm")),
    Sketcher.Constraint("DistanceY", 0, 2, -1, 1, Q("7.17 mm")),
])
pad15 = body13.newObject("PartDesign::Pad", "Pad014")
pad15.Profile = sketch20
pad15.Length = 0.15
body10.AllowCompound = True
doc.recompute()

boolean = body10.newObject("PartDesign::Boolean", "Boolean")
boolean.Type = "Fuse"
boolean.addObjects([body11])
doc.recompute()

boolean2 = body10.newObject("PartDesign::Boolean", "Boolean001")
boolean2.Type = "Fuse"
boolean2.addObjects([body12])
doc.recompute()

boolean3 = body10.newObject("PartDesign::Boolean", "Boolean002")
boolean3.Type = "Fuse"
boolean3.addObjects([body13])

sketch21 = body10.newObject("Sketcher::SketchObject", "Sketch020")
sketch21.AttachmentSupport = (doc.getObject("XZ_Plane009"), [""])
sketch21.MapMode = "FlatFace"
sketch21.AttachmentOffset = App.Placement(Vector(0, 0, 0.15), App.Rotation())
sketch21.addGeometry([
    Part.LineSegment(Vector(-29.2, 6.92, 0), Vector(-29.2, 5.72, 0)),
    Part.LineSegment(Vector(-29.2, 5.72, 0), Vector(-28.3, 5.72, 0)),
    Part.LineSegment(Vector(-28.3, 5.72, 0), Vector(-28.3, 6.92, 0)),
    Part.LineSegment(Vector(-28.3, 6.92, 0), Vector(-29.2, 6.92, 0)),
    Part.LineSegment(Vector(-27.7, 6.92, 0), Vector(-27.7, 5.72, 0)),
    Part.LineSegment(Vector(-27.7, 5.72, 0), Vector(-26.8, 5.72, 0)),
    Part.LineSegment(Vector(-26.8, 5.72, 0), Vector(-26.8, 6.92, 0)),
    Part.LineSegment(Vector(-26.8, 6.92, 0), Vector(-27.7, 6.92, 0)),
    Part.LineSegment(Vector(-27.7, -5.72, 0), Vector(-27.7, -6.92, 0)),
    Part.LineSegment(Vector(-27.7, -6.92, 0), Vector(-26.8, -6.92, 0)),
    Part.LineSegment(Vector(-26.8, -6.92, 0), Vector(-26.8, -5.72, 0)),
    Part.LineSegment(Vector(-26.8, -5.72, 0), Vector(-27.7, -5.72, 0)),
    Part.LineSegment(Vector(-29.2, -5.72, 0), Vector(-29.2, -6.92, 0)),
    Part.LineSegment(Vector(-29.2, -6.92, 0), Vector(-28.3, -6.92, 0)),
    Part.LineSegment(Vector(-28.3, -6.92, 0), Vector(-28.3, -5.72, 0)),
    Part.LineSegment(Vector(-28.3, -5.72, 0), Vector(-29.2, -5.72, 0)),
], False)
sketch21.addConstraint([
    Sketcher.Constraint("Coincident", 0, 2, 1, 1),
    Sketcher.Constraint("Coincident", 1, 2, 2, 1),
    Sketcher.Constraint("Coincident", 2, 2, 3, 1),
    Sketcher.Constraint("Coincident", 3, 2, 0, 1),
    Sketcher.Constraint("Coincident", 4, 2, 5, 1),
    Sketcher.Constraint("Coincident", 5, 2, 6, 1),
    Sketcher.Constraint("Coincident", 6, 2, 7, 1),
    Sketcher.Constraint("Coincident", 7, 2, 4, 1),
    Sketcher.Constraint("Coincident", 8, 2, 9, 1),
    Sketcher.Constraint("Coincident", 9, 2, 10, 1),
    Sketcher.Constraint("Coincident", 10, 2, 11, 1),
    Sketcher.Constraint("Coincident", 11, 2, 8, 1),
    Sketcher.Constraint("Coincident", 12, 2, 13, 1),
    Sketcher.Constraint("Coincident", 13, 2, 14, 1),
    Sketcher.Constraint("Coincident", 14, 2, 15, 1),
    Sketcher.Constraint("Coincident", 15, 2, 12, 1),
    Sketcher.Constraint("Vertical", 0),
    Sketcher.Constraint("Horizontal", 1),
    Sketcher.Constraint("Vertical", 2),
    Sketcher.Constraint("Horizontal", 3),
    Sketcher.Constraint("Vertical", 4),
    Sketcher.Constraint("Horizontal", 5),
    Sketcher.Constraint("Vertical", 6),
    Sketcher.Constraint("Horizontal", 7),
    Sketcher.Constraint("Vertical", 8),
    Sketcher.Constraint("Horizontal", 9),
    Sketcher.Constraint("Vertical", 10),
    Sketcher.Constraint("Horizontal", 11),
    Sketcher.Constraint("Vertical", 12),
    Sketcher.Constraint("Horizontal", 13),
    Sketcher.Constraint("Vertical", 14),
    Sketcher.Constraint("Horizontal", 15),
    Sketcher.Constraint("Symmetric", 7, 2, 8, 2, -1),
    Sketcher.Constraint("Symmetric", 5, 2, 10, 2, -1),
    Sketcher.Constraint("Symmetric", 3, 2, 12, 2, -1),
    Sketcher.Constraint("Symmetric", 1, 2, 14, 2, -1),
    Sketcher.Constraint("Horizontal", 1, 2, 4, 2),
    Sketcher.Constraint("Horizontal", 3, 2, 6, 2),
    Sketcher.Constraint("Equal", 3, 5),
    Sketcher.Constraint("DistanceX", 1, 1, 1, 2, Q("0.9 mm")),
    Sketcher.Constraint("DistanceY", 0, 2, 0, 1, Q("1.2 mm")),
    Sketcher.Constraint("DistanceX", 0, 2, -1, 1, Q("29.2 mm")),
    Sketcher.Constraint("DistanceX", 4, 2, -1, 1, Q("27.7 mm")),
    Sketcher.Constraint("DistanceY", -1, 1, 0, 2, Q("5.72 mm")),
])
pad16 = body10.newObject("PartDesign::Pad", "Pad015")
pad16.Profile = sketch21
pad16.Length = 0.25

doc.recompute()
